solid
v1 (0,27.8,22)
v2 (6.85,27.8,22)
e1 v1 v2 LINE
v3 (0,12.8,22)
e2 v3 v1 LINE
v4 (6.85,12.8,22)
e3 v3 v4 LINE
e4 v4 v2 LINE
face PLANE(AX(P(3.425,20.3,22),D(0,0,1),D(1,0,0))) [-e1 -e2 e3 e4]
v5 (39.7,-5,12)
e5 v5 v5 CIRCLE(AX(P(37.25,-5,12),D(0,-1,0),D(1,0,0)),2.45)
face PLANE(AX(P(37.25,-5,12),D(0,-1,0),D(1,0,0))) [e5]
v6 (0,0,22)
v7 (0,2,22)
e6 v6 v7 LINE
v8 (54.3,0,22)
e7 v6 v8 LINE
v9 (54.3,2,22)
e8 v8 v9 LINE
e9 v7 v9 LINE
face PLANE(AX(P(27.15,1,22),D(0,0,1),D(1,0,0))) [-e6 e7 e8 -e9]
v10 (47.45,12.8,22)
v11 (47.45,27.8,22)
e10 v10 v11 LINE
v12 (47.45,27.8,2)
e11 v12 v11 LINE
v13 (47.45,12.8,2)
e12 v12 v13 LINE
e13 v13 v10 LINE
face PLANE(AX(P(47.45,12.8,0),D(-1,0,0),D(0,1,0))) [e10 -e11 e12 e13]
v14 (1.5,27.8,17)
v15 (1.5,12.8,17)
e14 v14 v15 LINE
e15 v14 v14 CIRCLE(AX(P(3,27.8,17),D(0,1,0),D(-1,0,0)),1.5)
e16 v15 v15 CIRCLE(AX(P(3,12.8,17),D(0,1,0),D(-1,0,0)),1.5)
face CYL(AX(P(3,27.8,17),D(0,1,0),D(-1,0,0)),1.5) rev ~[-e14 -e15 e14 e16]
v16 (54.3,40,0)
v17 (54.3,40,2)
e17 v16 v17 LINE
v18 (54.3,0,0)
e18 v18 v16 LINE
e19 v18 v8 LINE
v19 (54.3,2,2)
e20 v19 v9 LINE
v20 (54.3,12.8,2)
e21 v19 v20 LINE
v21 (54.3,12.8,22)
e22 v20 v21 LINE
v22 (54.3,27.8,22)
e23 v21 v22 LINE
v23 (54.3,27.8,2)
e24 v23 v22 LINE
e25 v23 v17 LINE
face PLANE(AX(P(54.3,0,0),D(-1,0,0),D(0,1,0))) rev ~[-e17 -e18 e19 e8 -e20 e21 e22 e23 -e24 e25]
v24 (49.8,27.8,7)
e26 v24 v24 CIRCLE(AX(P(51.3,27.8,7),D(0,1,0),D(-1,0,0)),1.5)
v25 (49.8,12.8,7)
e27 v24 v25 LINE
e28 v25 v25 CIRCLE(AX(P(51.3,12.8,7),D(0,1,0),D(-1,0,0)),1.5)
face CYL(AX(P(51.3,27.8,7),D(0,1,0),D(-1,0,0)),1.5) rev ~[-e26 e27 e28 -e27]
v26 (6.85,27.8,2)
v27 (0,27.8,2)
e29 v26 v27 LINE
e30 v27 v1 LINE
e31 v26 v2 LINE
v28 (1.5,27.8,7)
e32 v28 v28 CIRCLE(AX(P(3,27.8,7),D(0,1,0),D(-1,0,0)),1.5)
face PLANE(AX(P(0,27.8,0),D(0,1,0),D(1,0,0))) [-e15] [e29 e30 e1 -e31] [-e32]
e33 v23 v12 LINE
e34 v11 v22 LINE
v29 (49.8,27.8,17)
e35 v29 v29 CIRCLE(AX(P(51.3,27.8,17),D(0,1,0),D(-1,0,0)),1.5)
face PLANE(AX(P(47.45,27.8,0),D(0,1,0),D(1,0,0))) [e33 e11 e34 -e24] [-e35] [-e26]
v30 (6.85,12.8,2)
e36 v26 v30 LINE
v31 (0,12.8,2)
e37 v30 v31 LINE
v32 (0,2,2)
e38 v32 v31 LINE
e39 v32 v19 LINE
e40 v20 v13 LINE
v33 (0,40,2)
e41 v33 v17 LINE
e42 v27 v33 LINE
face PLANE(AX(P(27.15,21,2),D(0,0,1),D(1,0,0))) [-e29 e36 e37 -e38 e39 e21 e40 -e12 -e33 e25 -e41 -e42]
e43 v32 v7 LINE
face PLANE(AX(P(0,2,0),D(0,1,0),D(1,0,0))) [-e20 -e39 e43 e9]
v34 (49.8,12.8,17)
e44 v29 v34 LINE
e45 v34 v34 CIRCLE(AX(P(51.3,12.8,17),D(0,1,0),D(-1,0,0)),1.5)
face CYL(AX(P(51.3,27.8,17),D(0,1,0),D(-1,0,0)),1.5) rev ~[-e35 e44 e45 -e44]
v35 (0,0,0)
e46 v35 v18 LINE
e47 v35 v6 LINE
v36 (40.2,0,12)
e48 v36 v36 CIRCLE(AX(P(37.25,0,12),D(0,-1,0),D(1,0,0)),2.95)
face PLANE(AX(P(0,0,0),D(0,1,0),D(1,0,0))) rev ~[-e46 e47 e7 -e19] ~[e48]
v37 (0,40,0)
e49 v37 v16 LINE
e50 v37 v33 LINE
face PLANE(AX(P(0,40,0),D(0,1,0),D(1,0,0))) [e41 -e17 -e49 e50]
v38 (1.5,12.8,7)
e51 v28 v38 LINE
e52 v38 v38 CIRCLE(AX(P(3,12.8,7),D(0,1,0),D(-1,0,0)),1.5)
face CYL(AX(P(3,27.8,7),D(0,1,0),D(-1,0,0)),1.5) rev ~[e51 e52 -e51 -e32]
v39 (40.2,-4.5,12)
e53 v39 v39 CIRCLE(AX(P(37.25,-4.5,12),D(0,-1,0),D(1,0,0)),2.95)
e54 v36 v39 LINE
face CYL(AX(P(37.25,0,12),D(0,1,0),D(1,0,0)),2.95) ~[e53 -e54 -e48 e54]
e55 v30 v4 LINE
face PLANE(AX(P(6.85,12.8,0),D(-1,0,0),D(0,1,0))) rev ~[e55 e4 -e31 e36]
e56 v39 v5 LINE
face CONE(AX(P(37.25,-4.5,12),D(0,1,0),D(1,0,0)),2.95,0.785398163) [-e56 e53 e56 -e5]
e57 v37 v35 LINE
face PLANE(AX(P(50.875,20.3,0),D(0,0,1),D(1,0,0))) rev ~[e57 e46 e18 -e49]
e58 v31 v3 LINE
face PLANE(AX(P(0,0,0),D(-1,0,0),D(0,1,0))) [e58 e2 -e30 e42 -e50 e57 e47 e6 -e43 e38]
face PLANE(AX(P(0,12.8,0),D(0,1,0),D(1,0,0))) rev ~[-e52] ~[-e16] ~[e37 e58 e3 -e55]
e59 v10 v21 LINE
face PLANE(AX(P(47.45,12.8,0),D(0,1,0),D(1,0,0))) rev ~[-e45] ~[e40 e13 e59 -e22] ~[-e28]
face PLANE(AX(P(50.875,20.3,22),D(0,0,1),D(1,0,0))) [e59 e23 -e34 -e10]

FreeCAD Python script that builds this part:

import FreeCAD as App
import Part
import Sketcher
from FreeCAD import Vector
Q = App.Units.Quantity


def edges_at(feature, points):
    """Names of the edges that pass closest to the given points."""
    edges = feature.Shape.Edges
    near = lambda p: min(range(len(edges)), key=lambda i: edges[i].distToShape(Part.Vertex(*p))[0])
    return sorted({f"Edge{near(p) + 1}" for p in points})

doc = App.newDocument("Part")
body = doc.addObject("PartDesign::Body", "Body")

# Sketch on XY plane
sketch1 = body.newObject("Sketcher::SketchObject", "Sketch")
sketch1.AttachmentSupport = (doc.getObject("XY_Plane"), [""])
sketch1.MapMode = "FlatFace"
sketch1.addGeometry(Part.LineSegment(Vector(0, 40, 0), Vector(0, 2, 0)), False)
sketch1.addGeometry(Part.LineSegment(Vector(0, 2, 0), Vector(54.3, 2, 0)), False)
sketch1.addGeometry(Part.LineSegment(Vector(54.3, 2, 0), Vector(54.3, 40, 0)), False)
sketch1.addGeometry(Part.LineSegment(Vector(54.3, 40, 0), Vector(0, 40, 0)), False)
sketch1.addConstraint(Sketcher.Constraint("Coincident", 0, 2, 1, 1))
sketch1.addConstraint(Sketcher.Constraint("Coincident", 1, 2, 2, 1))
sketch1.addConstraint(Sketcher.Constraint("Coincident", 2, 2, 3, 1))
sketch1.addConstraint(Sketcher.Constraint("Coincident", 3, 2, 0, 1))
sketch1.addConstraint(Sketcher.Constraint("Vertical", 0))
sketch1.addConstraint(Sketcher.Constraint("Horizontal", 1))
sketch1.addConstraint(Sketcher.Constraint("Vertical", 2))
sketch1.addConstraint(Sketcher.Constraint("Horizontal", 3))
sketch1.addConstraint(Sketcher.Constraint("PointOnObject", 0, 2, -2))
sketch1.addConstraint(Sketcher.Constraint("DistanceY", 0, 2, 0, 1, Q("38 mm")))
sketch1.addConstraint(Sketcher.Constraint("DistanceX", 1, 1, 1, 2, Q("54.3 mm")))
sketch1.addConstraint(Sketcher.Constraint("DistanceY", -1, 1, 0, 2, Q("2 mm")))
pad1 = body.newObject("PartDesign::Pad", "Pad")
pad1.Profile = sketch1
pad1.Length = 2

# Sketch on XY plane
sketch2 = body.newObject("Sketcher::SketchObject", "Sketch001")
sketch2.AttachmentSupport = (doc.getObject("XY_Plane"), [""])
sketch2.MapMode = "FlatFace"
sketch2.addGeometry(Part.LineSegment(Vector(0, 2, 0), Vector(0, 0, 0)), False)
sketch2.addGeometry(Part.LineSegment(Vector(0, 0, 0), Vector(54.3, 0, 0)), False)
sketch2.addGeometry(Part.LineSegment(Vector(54.3, 0, 0), Vector(54.3, 2, 0)), False)
sketch2.addGeometry(Part.LineSegment(Vector(54.3, 2, 0), Vector(0, 2, 0)), False)
sketch2.addConstraint(Sketcher.Constraint("Coincident", 0, 2, 1, 1))
sketch2.addConstraint(Sketcher.Constraint("Coincident", 1, 2, 2, 1))
sketch2.addConstraint(Sketcher.Constraint("Coincident", 2, 2, 3, 1))
sketch2.addConstraint(Sketcher.Constraint("Coincident", 3, 2, 0, 1))
sketch2.addConstraint(Sketcher.Constraint("Vertical", 0))
sketch2.addConstraint(Sketcher.Constraint("Horizontal", 1))
sketch2.addConstraint(Sketcher.Constraint("Vertical", 2))
sketch2.addConstraint(Sketcher.Constraint("Horizontal", 3))
sketch2.addConstraint(Sketcher.Constraint("Coincident", 0, 2, -1, 1))
sketch2.addConstraint(Sketcher.Constraint("DistanceY", 0, 2, 0, 1, Q("2 mm")))
sketch2.addConstraint(Sketcher.Constraint("DistanceX", 1, 1, 1, 2, Q("54.3 mm")))
pad2 = body.newObject("PartDesign::Pad", "Pad001")
pad2.Profile = sketch2
pad2.Length = 22

# Sketch on XZ plane
sketch3 = body.newObject("Sketcher::SketchObject", "Sketch002")
sketch3.AttachmentSupport = (doc.getObject("XZ_Plane"), [""])
sketch3.MapMode = "FlatFace"
sketch3.addGeometry(Part.Circle(Vector(37.25, 12, 0), Vector(0, 0, 1), 2.95), False)
sketch3.addConstraint(Sketcher.Constraint("Diameter", 0, Q("5.9 mm")))
sketch3.addConstraint(Sketcher.Constraint("DistanceY", -1, 1, 0, 3, Q("12 mm")))
sketch3.addConstraint(Sketcher.Constraint("DistanceX", -1, 1, 0, 3, Q("37.25 mm")))
pad3 = body.newObject("PartDesign::Pad", "Pad002")
pad3.Profile = sketch3
pad3.Length = 5

# Sketch on XY plane
sketch4 = body.newObject("Sketcher::SketchObject", "Sketch003")
sketch4.AttachmentSupport = (doc.getObject("XY_Plane"), [""])
sketch4.MapMode = "FlatFace"
sketch4.addGeometry(Part.LineSegment(Vector(0, 27.8, 0), Vector(0, 12.8, 0)), False)
sketch4.addGeometry(Part.LineSegment(Vector(0, 12.8, 0), Vector(6.85, 12.8, 0)), False)
sketch4.addGeometry(Part.LineSegment(Vector(6.85, 12.8, 0), Vector(6.85, 27.8, 0)), False)
sketch4.addGeometry(Part.LineSegment(Vector(6.85, 27.8, 0), Vector(0, 27.8, 0)), False)
sketch4.addConstraint(Sketcher.Constraint("Coincident", 0, 2, 1, 1))
sketch4.addConstraint(Sketcher.Constraint("Coincident", 1, 2, 2, 1))
sketch4.addConstraint(Sketcher.Constraint("Coincident", 2, 2, 3, 1))
sketch4.addConstraint(Sketcher.Constraint("Coincident", 3, 2, 0, 1))
sketch4.addConstraint(Sketcher.Constraint("Vertical", 0))
sketch4.addConstraint(Sketcher.Constraint("Horizontal", 1))
sketch4.addConstraint(Sketcher.Constraint("Vertical", 2))
sketch4.addConstraint(Sketcher.Constraint("Horizontal", 3))
sketch4.addConstraint(Sketcher.Constraint("PointOnObject", 0, 2, -2))
sketch4.addConstraint(Sketcher.Constraint("DistanceY", 0, 2, 0, 1, Q("15 mm")))
sketch4.addConstraint(Sketcher.Constraint("DistanceX", 1, 1, 1, 2, Q("6.85 mm")))
sketch4.addConstraint(Sketcher.Constraint("DistanceY", -1, 1, 0, 2, Q("12.8 mm")))
pad4 = body.newObject("PartDesign::Pad", "Pad003")
pad4.Profile = sketch4
pad4.Length = 22

# Sketch on XZ plane
sketch5 = body.newObject("Sketcher::SketchObject", "Sketch004")
sketch5.AttachmentSupport = (doc.getObject("XZ_Plane"), [""])
sketch5.MapMode = "FlatFace"
sketch5.AttachmentOffset = App.Placement(Vector(0, 0, -27.8), App.Rotation())
sketch5.addGeometry(Part.Circle(Vector(3, 17, 0), Vector(0, 0, 1), 1.5), False)
sketch5.addGeometry(Part.Circle(Vector(3, 7, 0), Vector(0, 0, 1), 1.5), False)
sketch5.addConstraint(Sketcher.Constraint("Equal", 0, 1))
sketch5.addConstraint(Sketcher.Constraint("Vertical", 0, 3, 1, 3))
sketch5.addConstraint(Sketcher.Constraint("Diameter", 0, Q("3 mm")))
sketch5.addConstraint(Sketcher.Constraint("DistanceX", -1, 1, 0, 3, Q("3 mm")))
sketch5.addConstraint(Sketcher.Constraint("DistanceY", -1, 1, 0, 3, Q("17 mm")))
sketch5.addConstraint(Sketcher.Constraint("DistanceY", -1, 1, 1, 3, Q("7 mm")))
pocket1 = body.newObject("PartDesign::Pocket", "Pocket")
pocket1.Profile = sketch5
pocket1.Length = 15
pocket1.Reversed = True

# Sketch on XY plane
sketch6 = body.newObject("Sketcher::SketchObject", "Sketch005")
sketch6.AttachmentSupport = (doc.getObject("XY_Plane"), [""])
sketch6.MapMode = "FlatFace"
sketch6.addGeometry(Part.LineSegment(Vector(47.45, 27.8, 0), Vector(47.45, 12.8, 0)), False)
sketch6.addGeometry(Part.LineSegment(Vector(47.45, 12.8, 0), Vector(54.3, 12.8, 0)), False)
sketch6.addGeometry(Part.LineSegment(Vector(54.3, 12.8, 0), Vector(54.3, 27.8, 0)), False)
sketch6.addGeometry(Part.LineSegment(Vector(54.3, 27.8, 0), Vector(47.45, 27.8, 0)), False)
sketch6.addConstraint(Sketcher.Constraint("Coincident", 0, 2, 1, 1))
sketch6.addConstraint(Sketcher.Constraint("Coincident", 1, 2, 2, 1))
sketch6.addConstraint(Sketcher.Constraint("Coincident", 2, 2, 3, 1))
sketch6.addConstraint(Sketcher.Constraint("Coincident", 3, 2, 0, 1))
sketch6.addConstraint(Sketcher.Constraint("Vertical", 0))
sketch6.addConstraint(Sketcher.Constraint("Horizontal", 1))
sketch6.addConstraint(Sketcher.Constraint("Vertical", 2))
sketch6.addConstraint(Sketcher.Constraint("Horizontal", 3))
sketch6.addConstraint(Sketcher.Constraint("DistanceY", 0, 2, 0, 1, Q("15 mm")))
sketch6.addConstraint(Sketcher.Constraint("DistanceX", 1, 1, 1, 2, Q("6.85 mm")))
sketch6.addConstraint(Sketcher.Constraint("DistanceY", -1, 1, 0, 2, Q("12.8 mm")))
sketch6.addConstraint(Sketcher.Constraint("DistanceX", -1, 1, 1, 2, Q("54.3 mm")))
pad5 = body.newObject("PartDesign::Pad", "Pad004")
pad5.Profile = sketch6
pad5.Length = 22

# Sketch on XZ plane
sketch7 = body.newObject("Sketcher::SketchObject", "Sketch006")
sketch7.AttachmentSupport = (doc.getObject("XZ_Plane"), [""])
sketch7.MapMode = "FlatFace"
sketch7.AttachmentOffset = App.Placement(Vector(0, 0, -27.8), App.Rotation())
sketch7.addGeometry(Part.Circle(Vector(51.3, 17, 0), Vector(0, 0, 1), 1.5), False)
sketch7.addGeometry(Part.Circle(Vector(51.3, 7, 0), Vector(0, 0, 1), 1.5), False)
sketch7.addConstraint(Sketcher.Constraint("Equal", 0, 1))
sketch7.addConstraint(Sketcher.Constraint("Vertical", 0, 3, 1, 3))
sketch7.addConstraint(Sketcher.Constraint("Diameter", 0, Q("3 mm")))
sketch7.addConstraint(Sketcher.Constraint("DistanceY", -1, 1, 0, 3, Q("17 mm")))
sketch7.addConstraint(Sketcher.Constraint("DistanceY", -1, 1, 1, 3, Q("7 mm")))
sketch7.addConstraint(Sketcher.Constraint("DistanceX", -1, 1, 0, 3, Q("51.3 mm")))
pocket2 = body.newObject("PartDesign::Pocket", "Pocket001")
pocket2.Profile = sketch7
pocket2.Length = 15
pocket2.Reversed = True
doc.recompute()

chamfer = body.newObject("PartDesign::Chamfer", "Chamfer")
chamfer.Base = (pocket2, edges_at(pocket2, [(34.3, -5, 12)]))
chamfer.Size = 0.5

doc.recompute()
